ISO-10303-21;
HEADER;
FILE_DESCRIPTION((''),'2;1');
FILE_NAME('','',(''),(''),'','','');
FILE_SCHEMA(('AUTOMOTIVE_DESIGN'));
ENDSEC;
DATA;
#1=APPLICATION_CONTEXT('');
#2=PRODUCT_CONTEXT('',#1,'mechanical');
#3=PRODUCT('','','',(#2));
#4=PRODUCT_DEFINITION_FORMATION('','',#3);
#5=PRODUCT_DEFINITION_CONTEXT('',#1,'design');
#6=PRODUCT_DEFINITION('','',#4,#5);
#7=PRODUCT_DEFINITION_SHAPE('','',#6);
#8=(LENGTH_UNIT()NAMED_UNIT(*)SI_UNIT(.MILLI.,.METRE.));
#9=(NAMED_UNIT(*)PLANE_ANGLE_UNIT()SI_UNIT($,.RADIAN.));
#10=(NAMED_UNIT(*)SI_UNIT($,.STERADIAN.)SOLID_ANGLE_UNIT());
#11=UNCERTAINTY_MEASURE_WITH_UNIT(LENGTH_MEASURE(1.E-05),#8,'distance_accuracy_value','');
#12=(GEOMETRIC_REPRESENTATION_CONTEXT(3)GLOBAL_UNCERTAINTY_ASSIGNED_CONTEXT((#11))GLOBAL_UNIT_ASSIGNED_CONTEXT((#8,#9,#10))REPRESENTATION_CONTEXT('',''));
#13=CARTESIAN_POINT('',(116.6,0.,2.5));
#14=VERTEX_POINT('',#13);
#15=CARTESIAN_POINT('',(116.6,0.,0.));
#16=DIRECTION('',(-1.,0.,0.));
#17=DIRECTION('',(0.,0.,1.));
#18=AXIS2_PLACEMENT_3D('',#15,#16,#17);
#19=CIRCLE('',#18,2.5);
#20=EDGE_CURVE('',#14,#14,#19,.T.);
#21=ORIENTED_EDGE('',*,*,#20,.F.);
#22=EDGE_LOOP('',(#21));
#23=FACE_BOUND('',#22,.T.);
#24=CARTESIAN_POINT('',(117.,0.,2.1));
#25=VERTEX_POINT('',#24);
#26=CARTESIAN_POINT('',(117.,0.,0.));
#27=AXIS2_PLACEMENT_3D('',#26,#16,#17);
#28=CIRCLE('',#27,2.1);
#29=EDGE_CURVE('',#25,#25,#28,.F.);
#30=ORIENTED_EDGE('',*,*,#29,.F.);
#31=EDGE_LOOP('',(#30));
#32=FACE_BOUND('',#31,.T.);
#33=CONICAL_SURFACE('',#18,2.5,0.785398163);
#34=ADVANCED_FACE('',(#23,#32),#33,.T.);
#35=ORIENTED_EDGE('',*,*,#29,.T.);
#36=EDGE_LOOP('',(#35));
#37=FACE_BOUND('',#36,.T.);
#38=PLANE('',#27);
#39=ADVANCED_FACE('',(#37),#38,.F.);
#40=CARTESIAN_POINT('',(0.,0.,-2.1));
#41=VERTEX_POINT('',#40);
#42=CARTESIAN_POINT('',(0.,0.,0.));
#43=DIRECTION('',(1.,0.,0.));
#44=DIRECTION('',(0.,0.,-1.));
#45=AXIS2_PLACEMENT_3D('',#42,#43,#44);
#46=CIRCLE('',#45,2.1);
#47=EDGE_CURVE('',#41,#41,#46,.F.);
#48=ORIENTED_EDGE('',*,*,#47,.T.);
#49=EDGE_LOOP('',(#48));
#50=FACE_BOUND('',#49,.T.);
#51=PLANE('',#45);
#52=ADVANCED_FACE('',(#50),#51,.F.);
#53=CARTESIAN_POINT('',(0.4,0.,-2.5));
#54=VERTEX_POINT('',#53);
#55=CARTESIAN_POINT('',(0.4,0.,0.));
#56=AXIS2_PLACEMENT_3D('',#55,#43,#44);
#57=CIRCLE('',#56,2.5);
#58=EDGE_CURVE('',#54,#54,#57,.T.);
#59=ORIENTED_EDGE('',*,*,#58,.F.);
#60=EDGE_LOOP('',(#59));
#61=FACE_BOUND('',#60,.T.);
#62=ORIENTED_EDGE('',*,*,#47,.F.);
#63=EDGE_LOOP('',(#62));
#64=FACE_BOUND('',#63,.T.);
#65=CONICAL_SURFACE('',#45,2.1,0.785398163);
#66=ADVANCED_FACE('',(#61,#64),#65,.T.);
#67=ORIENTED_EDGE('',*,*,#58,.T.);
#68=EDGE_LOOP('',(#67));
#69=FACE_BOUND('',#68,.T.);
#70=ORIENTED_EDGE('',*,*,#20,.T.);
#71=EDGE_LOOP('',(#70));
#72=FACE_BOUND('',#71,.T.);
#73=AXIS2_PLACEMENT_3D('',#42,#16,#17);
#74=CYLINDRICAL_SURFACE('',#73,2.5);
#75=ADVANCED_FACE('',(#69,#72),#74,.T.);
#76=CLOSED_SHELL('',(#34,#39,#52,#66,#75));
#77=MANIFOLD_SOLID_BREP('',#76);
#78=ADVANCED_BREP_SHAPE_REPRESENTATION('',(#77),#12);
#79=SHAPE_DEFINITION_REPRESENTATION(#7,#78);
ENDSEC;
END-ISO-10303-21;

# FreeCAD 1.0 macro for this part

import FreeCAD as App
import Part
import Sketcher
Q = App.Units.Quantity


def edges_at(feature, points):
    """Names of the edges that pass closest to the given points."""
    edges = feature.Shape.Edges
    near = lambda p: min(range(len(edges)), key=lambda i: edges[i].distToShape(Part.Vertex(*p))[0])
    return sorted({f"Edge{near(p) + 1}" for p in points})


def add_polygon(sketch, points):
    """Adds a closed chain of lines whose ends are joined by coincident constraints."""
    first, n = sketch.GeometryCount, len(points)
    for a, b in zip(points, points[1:] + points[:1]):
        sketch.addGeometry(Part.LineSegment(App.Vector(*a, 0), App.Vector(*b, 0)), False)
    for i in range(n):
        sketch.addConstraint(Sketcher.Constraint("Coincident", first + i, 2, first + (i + 1) % n, 1))

doc = App.newDocument("Part")
body = doc.addObject("PartDesign::Body", "Body")

sketch1 = body.newObject("Sketcher::SketchObject", "Sketch")
sketch1.AttachmentSupport = (doc.getObject("XY_Plane"), [""])
sketch1.MapMode = "FlatFace"
add_polygon(sketch1, [(0, 2.5), (0, 0), (117, 0), (117, 2.5)])
sketch1.addConstraint([
    Sketcher.Constraint("Vertical", 0),
    Sketcher.Constraint("Horizontal", 1),
    Sketcher.Constraint("Vertical", 2),
    Sketcher.Constraint("Horizontal", 3),
    Sketcher.Constraint("Coincident", 0, 2, -1, 1),
    Sketcher.Constraint("DistanceX", 1, 1, 1, 2, Q("117 mm")),
    Sketcher.Constraint("DistanceY", 0, 2, 0, 1, Q("2.5 mm")),
])
revolution = body.newObject("PartDesign::Revolution", "Revolution")
revolution.Profile = sketch1
revolution.ReferenceAxis = (sketch1, ["H_Axis"])
revolution.Angle = 360
doc.recompute()

chamfer = body.newObject("PartDesign::Chamfer", "Chamfer")
chamfer.Base = (revolution, edges_at(revolution, [(117, -2.5, 0), (0, -2.5, 0)]))
chamfer.Size = 0.4

doc.recompute()
